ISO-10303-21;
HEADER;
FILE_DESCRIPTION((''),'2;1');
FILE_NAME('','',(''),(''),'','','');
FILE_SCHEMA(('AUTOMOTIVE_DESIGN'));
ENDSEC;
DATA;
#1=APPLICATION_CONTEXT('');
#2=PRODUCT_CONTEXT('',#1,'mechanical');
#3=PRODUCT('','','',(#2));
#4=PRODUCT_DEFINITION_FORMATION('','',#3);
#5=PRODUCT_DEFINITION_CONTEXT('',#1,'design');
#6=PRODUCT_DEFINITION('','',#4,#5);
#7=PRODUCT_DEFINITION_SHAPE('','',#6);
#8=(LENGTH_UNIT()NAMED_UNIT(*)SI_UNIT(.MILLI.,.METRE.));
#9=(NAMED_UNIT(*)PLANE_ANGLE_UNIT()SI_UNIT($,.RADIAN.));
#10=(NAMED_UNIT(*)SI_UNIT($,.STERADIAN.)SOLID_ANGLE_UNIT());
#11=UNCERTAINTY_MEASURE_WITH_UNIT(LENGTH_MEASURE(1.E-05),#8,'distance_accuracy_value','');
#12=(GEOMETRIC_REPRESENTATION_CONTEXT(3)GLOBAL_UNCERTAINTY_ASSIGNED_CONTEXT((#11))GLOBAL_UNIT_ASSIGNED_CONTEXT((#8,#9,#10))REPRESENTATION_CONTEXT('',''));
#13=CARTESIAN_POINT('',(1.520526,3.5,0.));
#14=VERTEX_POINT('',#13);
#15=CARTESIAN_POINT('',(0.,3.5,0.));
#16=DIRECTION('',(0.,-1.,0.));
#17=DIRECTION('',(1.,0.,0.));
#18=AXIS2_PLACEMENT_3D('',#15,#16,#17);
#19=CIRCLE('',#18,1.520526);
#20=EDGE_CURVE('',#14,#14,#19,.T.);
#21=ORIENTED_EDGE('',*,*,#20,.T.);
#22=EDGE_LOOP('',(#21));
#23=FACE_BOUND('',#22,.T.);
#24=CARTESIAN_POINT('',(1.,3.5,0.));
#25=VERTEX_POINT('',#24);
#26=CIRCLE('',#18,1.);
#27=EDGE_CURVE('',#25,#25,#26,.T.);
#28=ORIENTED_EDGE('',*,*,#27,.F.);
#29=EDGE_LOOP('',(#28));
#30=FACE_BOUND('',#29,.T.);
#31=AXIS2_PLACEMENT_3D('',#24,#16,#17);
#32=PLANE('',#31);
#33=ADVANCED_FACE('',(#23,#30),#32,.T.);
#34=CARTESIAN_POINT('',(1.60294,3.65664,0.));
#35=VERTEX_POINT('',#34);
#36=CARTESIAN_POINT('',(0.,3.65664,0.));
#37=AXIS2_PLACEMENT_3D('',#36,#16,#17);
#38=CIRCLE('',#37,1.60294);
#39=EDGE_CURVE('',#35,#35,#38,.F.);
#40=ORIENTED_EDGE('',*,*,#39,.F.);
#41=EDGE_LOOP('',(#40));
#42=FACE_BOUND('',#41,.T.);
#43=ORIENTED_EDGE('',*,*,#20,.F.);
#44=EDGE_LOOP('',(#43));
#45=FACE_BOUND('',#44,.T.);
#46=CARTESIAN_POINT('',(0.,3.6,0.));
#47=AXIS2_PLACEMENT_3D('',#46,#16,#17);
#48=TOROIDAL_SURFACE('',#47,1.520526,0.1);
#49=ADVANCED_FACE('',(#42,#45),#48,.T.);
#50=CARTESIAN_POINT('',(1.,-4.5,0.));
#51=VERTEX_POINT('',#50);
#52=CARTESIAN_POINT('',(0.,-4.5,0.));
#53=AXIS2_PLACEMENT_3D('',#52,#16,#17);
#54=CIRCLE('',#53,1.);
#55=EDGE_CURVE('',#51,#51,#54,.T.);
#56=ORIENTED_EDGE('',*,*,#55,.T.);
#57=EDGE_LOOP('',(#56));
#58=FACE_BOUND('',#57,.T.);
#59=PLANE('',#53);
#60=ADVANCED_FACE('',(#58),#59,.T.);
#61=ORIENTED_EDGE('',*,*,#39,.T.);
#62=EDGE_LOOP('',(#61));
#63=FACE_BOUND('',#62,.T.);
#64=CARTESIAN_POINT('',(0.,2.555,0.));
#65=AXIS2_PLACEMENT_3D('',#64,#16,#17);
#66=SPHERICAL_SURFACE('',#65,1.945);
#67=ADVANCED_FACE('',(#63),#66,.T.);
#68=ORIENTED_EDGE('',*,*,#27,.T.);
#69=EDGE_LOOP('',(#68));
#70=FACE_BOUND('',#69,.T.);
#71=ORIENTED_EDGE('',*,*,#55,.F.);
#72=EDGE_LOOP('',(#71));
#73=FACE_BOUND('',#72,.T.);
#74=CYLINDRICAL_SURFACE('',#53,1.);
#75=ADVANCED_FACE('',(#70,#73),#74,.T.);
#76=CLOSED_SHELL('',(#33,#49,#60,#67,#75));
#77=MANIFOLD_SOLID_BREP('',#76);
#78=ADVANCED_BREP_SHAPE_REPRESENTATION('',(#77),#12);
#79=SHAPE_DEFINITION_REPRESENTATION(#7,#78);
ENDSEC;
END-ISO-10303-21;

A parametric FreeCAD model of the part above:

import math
import FreeCAD as App
import Part
import Sketcher

V = App.Vector


def edges_at(feature, points):
    """Names of the edges that pass closest to the given points."""
    edges = feature.Shape.Edges
    near = lambda p: min(range(len(edges)), key=lambda i: edges[i].distToShape(Part.Vertex(*p))[0])
    return sorted({f"Edge{near(p) + 1}" for p in points})

doc = App.newDocument("Part")
body = doc.addObject("PartDesign::Body", "Body")

# Sketch on XY plane
sketch1 = doc.addObject("Sketcher::SketchObject", "Sketch")
body.addObject(sketch1)
sketch1.AttachmentSupport = (doc.XY_Plane, [""])
sketch1.MapMode = "FlatFace"
sketch1.addGeometry(Part.LineSegment(V(0, 4.5, 0), V(0, -4.5, 0)), False)
sketch1.addGeometry(Part.LineSegment(V(0, -4.5, 0), V(1, -4.5, 0)), False)
sketch1.addGeometry(Part.LineSegment(V(1, -4.5, 0), V(1, 3.5, 0)), False)
sketch1.addGeometry(Part.LineSegment(V(1, 3.5, 0), V(1.7, 3.5, 0)), False)
sketch1.addGeometry(Part.ArcOfCircle(Part.Circle(V(0, 2.6, 0), V(0, 0, 1), 1.9), math.radians(29), math.radians(90)), False)
sketch1.addConstraint(Sketcher.Constraint("Coincident", 0, 2, 1, 1))
sketch1.addConstraint(Sketcher.Constraint("Coincident", 1, 2, 2, 1))
sketch1.addConstraint(Sketcher.Constraint("Coincident", 2, 2, 3, 1))
sketch1.addConstraint(Sketcher.Constraint("Coincident", 3, 2, 4, 1))
sketch1.addConstraint(Sketcher.Constraint("Coincident", 4, 2, 0, 1))
sketch1.addConstraint(Sketcher.Constraint("Vertical", 0))
sketch1.addConstraint(Sketcher.Constraint("Horizontal", 1))
sketch1.addConstraint(Sketcher.Constraint("Vertical", 2))
sketch1.addConstraint(Sketcher.Constraint("Horizontal", 3))
sketch1.addConstraint(Sketcher.Constraint("Symmetric", 0, 2, 4, 2, -1, 1))
sketch1.addConstraint(Sketcher.Constraint("PointOnObject", 4, 3, -2))
sketch1.addConstraint(Sketcher.Constraint("DistanceX", 1, 1, 1, 2, 1.0))
sketch1.addConstraint(Sketcher.Constraint("DistanceY", 0, 2, 0, 1, 9.0))
sketch1.addConstraint(Sketcher.Constraint("DistanceY", 2, 1, 2, 2, 8.0))
sketch1.addConstraint(Sketcher.Constraint("DistanceX", 3, 1, 3, 2, 0.7))
revolution = doc.addObject("PartDesign::Revolution", "Revolution")
body.addObject(revolution)
revolution.Profile = sketch1
revolution.ReferenceAxis = (sketch1, ["V_Axis"])
revolution.Angle = 360
doc.recompute()

fillet = doc.addObject("PartDesign::Fillet", "Fillet")
body.addObject(fillet)
fillet.Base = (revolution, edges_at(revolution, [(-1.7, 3.5, 0)]))
fillet.Radius = 0.1

doc.recompute()
